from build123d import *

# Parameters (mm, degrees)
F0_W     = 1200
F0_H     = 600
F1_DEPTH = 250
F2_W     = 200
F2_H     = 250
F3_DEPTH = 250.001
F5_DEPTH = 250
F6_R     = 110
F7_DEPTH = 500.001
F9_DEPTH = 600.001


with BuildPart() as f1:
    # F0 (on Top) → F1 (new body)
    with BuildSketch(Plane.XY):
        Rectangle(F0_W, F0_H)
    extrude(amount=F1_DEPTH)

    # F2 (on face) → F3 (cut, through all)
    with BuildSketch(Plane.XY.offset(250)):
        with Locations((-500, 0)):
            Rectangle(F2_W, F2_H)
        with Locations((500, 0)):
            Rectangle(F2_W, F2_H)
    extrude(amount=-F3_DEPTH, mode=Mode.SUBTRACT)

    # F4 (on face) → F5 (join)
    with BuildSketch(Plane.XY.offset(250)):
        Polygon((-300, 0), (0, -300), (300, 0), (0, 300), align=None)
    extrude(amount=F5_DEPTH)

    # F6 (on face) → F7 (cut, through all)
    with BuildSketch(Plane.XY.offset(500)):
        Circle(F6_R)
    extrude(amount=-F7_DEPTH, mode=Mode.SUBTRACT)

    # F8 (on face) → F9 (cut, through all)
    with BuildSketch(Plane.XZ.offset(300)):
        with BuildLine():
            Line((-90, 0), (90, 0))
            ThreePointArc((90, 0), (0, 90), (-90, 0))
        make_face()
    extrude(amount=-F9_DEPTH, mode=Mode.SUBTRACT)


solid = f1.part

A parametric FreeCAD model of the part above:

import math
import FreeCAD as App
import Part
import Sketcher

V = App.Vector


def add_polygon(sketch, points):
    """Adds a closed chain of lines whose ends are joined by coincident constraints."""
    first, n = sketch.GeometryCount, len(points)
    for a, b in zip(points, points[1:] + points[:1]):
        sketch.addGeometry(Part.LineSegment(App.Vector(*a, 0), App.Vector(*b, 0)), False)
    for i in range(n):
        sketch.addConstraint(Sketcher.Constraint("Coincident", first + i, 2, first + (i + 1) % n, 1))

doc = App.newDocument("Part")
body = doc.addObject("PartDesign::Body", "Body")

# Sketch on XY plane
sketch1 = doc.addObject("Sketcher::SketchObject", "Sketch")
body.addObject(sketch1)
sketch1.AttachmentSupport = (doc.XY_Plane, [""])
sketch1.MapMode = "FlatFace"
add_polygon(sketch1, [(-600, 300), (-600, -300), (600, -300), (600, 300)])  # lines 0-3
sketch1.addConstraint(Sketcher.Constraint("Vertical", 0))
sketch1.addConstraint(Sketcher.Constraint("Horizontal", 1))
sketch1.addConstraint(Sketcher.Constraint("Vertical", 2))
sketch1.addConstraint(Sketcher.Constraint("Horizontal", 3))
sketch1.addConstraint(Sketcher.Constraint("Symmetric", 0, 2, 2, 2, -1, 1))
sketch1.addConstraint(Sketcher.Constraint("DistanceX", 1, 1, 1, 2, 1200.0))
sketch1.addConstraint(Sketcher.Constraint("DistanceY", 0, 2, 0, 1, 600.0))
pad1 = doc.addObject("PartDesign::Pad", "Pad")
body.addObject(pad1)
pad1.Profile = sketch1
pad1.Length = 250

# Sketch on XY plane
sketch2 = doc.addObject("Sketcher::SketchObject", "Sketch001")
body.addObject(sketch2)
sketch2.AttachmentSupport = (doc.XY_Plane, [""])
sketch2.MapMode = "FlatFace"
sketch2.AttachmentOffset = App.Placement(V(0, 0, 250), App.Rotation())
add_polygon(sketch2, [(-600, 125), (-600, -125), (-400, -125), (-400, 125)])  # lines 0-3
add_polygon(sketch2, [(400, 125), (400, -125), (600, -125), (600, 125)])  # lines 4-7
sketch2.addConstraint(Sketcher.Constraint("Vertical", 0))
sketch2.addConstraint(Sketcher.Constraint("Horizontal", 1))
sketch2.addConstraint(Sketcher.Constraint("Vertical", 2))
sketch2.addConstraint(Sketcher.Constraint("Horizontal", 3))
sketch2.addConstraint(Sketcher.Constraint("Vertical", 4))
sketch2.addConstraint(Sketcher.Constraint("Horizontal", 5))
sketch2.addConstraint(Sketcher.Constraint("Vertical", 6))
sketch2.addConstraint(Sketcher.Constraint("Horizontal", 7))
sketch2.addConstraint(Sketcher.Constraint("Symmetric", 2, 2, 4, 2, -1, 1))
sketch2.addConstraint(Sketcher.Constraint("Symmetric", 0, 2, 6, 2, -1, 1))
sketch2.addConstraint(Sketcher.Constraint("Horizontal", 1, 2, 4, 2))
sketch2.addConstraint(Sketcher.Constraint("DistanceX", 1, 1, 1, 2, 200.0))
sketch2.addConstraint(Sketcher.Constraint("DistanceY", 0, 2, 0, 1, 250.0))
sketch2.addConstraint(Sketcher.Constraint("DistanceX", 0, 2, -1, 1, 600.0))
pocket1 = doc.addObject("PartDesign::Pocket", "Pocket")
body.addObject(pocket1)
pocket1.Profile = sketch2
pocket1.Type = "ThroughAll"

# Sketch on XY plane
sketch3 = doc.addObject("Sketcher::SketchObject", "Sketch002")
body.addObject(sketch3)
sketch3.AttachmentSupport = (doc.XY_Plane, [""])
sketch3.MapMode = "FlatFace"
sketch3.AttachmentOffset = App.Placement(V(0, 0, 250), App.Rotation())
add_polygon(sketch3, [(-300, 0), (0, -300), (300, 0), (0, 300)])  # lines 0-3
sketch3.addConstraint(Sketcher.Constraint("Symmetric", 0, 2, 2, 2, -1, 1))
sketch3.addConstraint(Sketcher.Constraint("Symmetric", 1, 2, 3, 2, -1, 1))
sketch3.addConstraint(Sketcher.Constraint("PointOnObject", 0, 2, -2))
sketch3.addConstraint(Sketcher.Constraint("PointOnObject", 1, 2, -1))
sketch3.addConstraint(Sketcher.Constraint("Perpendicular", 0, 1))
sketch3.addConstraint(Sketcher.Constraint("DistanceY", 0, 2, -1, 1, 300.0))
pad2 = doc.addObject("PartDesign::Pad", "Pad001")
body.addObject(pad2)
pad2.Profile = sketch3
pad2.Length = 250

# Sketch on XY plane
sketch4 = doc.addObject("Sketcher::SketchObject", "Sketch003")
body.addObject(sketch4)
sketch4.AttachmentSupport = (doc.XY_Plane, [""])
sketch4.MapMode = "FlatFace"
sketch4.AttachmentOffset = App.Placement(V(0, 0, 500), App.Rotation())
sketch4.addGeometry(Part.Circle(V(0, 0, 0), V(0, 0, 1), 110), False)
sketch4.addConstraint(Sketcher.Constraint("Coincident", 0, 3, -1, 1))
sketch4.addConstraint(Sketcher.Constraint("Diameter", 0, 220.0))
pocket2 = doc.addObject("PartDesign::Pocket", "Pocket001")
body.addObject(pocket2)
pocket2.Profile = sketch4
pocket2.Type = "ThroughAll"

# Sketch on XZ plane
sketch5 = doc.addObject("Sketcher::SketchObject", "Sketch004")
body.addObject(sketch5)
sketch5.AttachmentSupport = (doc.XZ_Plane, [""])
sketch5.MapMode = "FlatFace"
sketch5.AttachmentOffset = App.Placement(V(0, 0, 300), App.Rotation())
sketch5.addGeometry(Part.LineSegment(V(-90, 0, 0), V(90, 0, 0)), False)
sketch5.addGeometry(Part.ArcOfCircle(Part.Circle(V(0, 0, 0), V(0, 0, 1), 90), math.radians(0), math.radians(180)), False)
sketch5.addConstraint(Sketcher.Constraint("Coincident", 0, 1, 1, 2))
sketch5.addConstraint(Sketcher.Constraint("Coincident", 1, 1, 0, 2))
sketch5.addConstraint(Sketcher.Constraint("Horizontal", 0))
sketch5.addConstraint(Sketcher.Constraint("Coincident", 1, 3, -1, 1))
sketch5.addConstraint(Sketcher.Constraint("PointOnObject", 0, 1, -1))
sketch5.addConstraint(Sketcher.Constraint("Radius", 1, 90.0))
pocket3 = doc.addObject("PartDesign::Pocket", "Pocket002")
body.addObject(pocket3)
pocket3.Profile = sketch5
pocket3.Type = "ThroughAll"

doc.recompute()
